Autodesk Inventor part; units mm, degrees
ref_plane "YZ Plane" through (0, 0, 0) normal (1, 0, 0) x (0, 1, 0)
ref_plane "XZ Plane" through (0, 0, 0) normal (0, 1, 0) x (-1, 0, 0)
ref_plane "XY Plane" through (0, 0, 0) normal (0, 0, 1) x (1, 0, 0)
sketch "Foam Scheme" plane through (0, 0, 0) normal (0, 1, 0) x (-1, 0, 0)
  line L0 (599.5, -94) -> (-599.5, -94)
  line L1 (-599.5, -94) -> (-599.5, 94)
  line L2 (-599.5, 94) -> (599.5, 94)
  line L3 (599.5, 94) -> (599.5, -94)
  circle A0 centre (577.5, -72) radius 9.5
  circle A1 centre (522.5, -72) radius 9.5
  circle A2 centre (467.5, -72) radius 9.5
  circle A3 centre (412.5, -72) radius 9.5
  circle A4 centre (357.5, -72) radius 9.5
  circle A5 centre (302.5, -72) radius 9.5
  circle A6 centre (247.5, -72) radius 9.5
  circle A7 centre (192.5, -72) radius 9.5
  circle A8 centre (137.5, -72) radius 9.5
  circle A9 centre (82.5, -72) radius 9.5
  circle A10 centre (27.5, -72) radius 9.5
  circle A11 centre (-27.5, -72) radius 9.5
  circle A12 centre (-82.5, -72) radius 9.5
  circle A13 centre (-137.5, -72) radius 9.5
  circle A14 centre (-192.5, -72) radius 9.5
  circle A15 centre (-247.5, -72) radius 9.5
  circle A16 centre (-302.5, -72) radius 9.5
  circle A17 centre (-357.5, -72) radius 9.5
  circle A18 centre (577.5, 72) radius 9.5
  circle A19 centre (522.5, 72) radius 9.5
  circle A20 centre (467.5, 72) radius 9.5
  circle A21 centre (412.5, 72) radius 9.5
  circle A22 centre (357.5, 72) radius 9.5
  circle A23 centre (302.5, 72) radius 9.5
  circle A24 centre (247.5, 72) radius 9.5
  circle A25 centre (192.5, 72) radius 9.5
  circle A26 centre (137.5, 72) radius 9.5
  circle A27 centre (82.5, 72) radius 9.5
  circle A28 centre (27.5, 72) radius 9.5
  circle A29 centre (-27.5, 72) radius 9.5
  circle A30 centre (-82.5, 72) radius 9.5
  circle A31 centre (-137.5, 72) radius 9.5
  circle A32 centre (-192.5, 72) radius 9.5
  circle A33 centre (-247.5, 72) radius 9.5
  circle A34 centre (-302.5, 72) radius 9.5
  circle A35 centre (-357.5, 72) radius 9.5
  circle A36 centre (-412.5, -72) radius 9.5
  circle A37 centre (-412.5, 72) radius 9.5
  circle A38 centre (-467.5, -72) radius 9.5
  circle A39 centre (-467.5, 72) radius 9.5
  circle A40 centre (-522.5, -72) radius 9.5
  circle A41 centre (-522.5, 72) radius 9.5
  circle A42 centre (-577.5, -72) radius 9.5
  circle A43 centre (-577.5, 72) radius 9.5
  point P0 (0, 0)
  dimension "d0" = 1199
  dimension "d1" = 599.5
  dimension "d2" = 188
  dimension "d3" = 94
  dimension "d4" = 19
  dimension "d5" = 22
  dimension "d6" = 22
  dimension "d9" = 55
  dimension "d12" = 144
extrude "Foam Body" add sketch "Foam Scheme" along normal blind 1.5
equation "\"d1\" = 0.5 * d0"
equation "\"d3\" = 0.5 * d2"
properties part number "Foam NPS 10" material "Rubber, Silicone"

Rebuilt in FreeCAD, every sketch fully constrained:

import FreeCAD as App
import Part
import Sketcher

doc = App.newDocument("Part")
body = doc.addObject("PartDesign::Body", "Body")

sketch1 = body.newObject("Sketcher::SketchObject", "Sketch")
sketch1.AttachmentSupport = (doc.getObject("XZ_Plane"), [""])
sketch1.MapMode = "FlatFace"
sketch1.addGeometry(Part.LineSegment(App.Vector(600, -94, 0), App.Vector(-600, -94, 0)), False)
sketch1.addGeometry(Part.LineSegment(App.Vector(-600, -94, 0), App.Vector(-600, 94, 0)), False)
sketch1.addGeometry(Part.LineSegment(App.Vector(-600, 94, 0), App.Vector(600, 94, 0)), False)
sketch1.addGeometry(Part.LineSegment(App.Vector(600, 94, 0), App.Vector(600, -94, 0)), False)
sketch1.addGeometry(Part.Circle(App.Vector(578, -72, 0), App.Vector(0, 0, 1), 10), False)
sketch1.addGeometry(Part.Circle(App.Vector(522, -72, 0), App.Vector(0, 0, 1), 10), False)
sketch1.addGeometry(Part.Circle(App.Vector(468, -72, 0), App.Vector(0, 0, 1), 10), False)
sketch1.addGeometry(Part.Circle(App.Vector(412, -72, 0), App.Vector(0, 0, 1), 10), False)
sketch1.addGeometry(Part.Circle(App.Vector(358, -72, 0), App.Vector(0, 0, 1), 10), False)
sketch1.addGeometry(Part.Circle(App.Vector(302, -72, 0), App.Vector(0, 0, 1), 10), False)
sketch1.addGeometry(Part.Circle(App.Vector(248, -72, 0), App.Vector(0, 0, 1), 10), False)
sketch1.addGeometry(Part.Circle(App.Vector(192, -72, 0), App.Vector(0, 0, 1), 10), False)
sketch1.addGeometry(Part.Circle(App.Vector(138, -72, 0), App.Vector(0, 0, 1), 10), False)
sketch1.addGeometry(Part.Circle(App.Vector(82, -72, 0), App.Vector(0, 0, 1), 10), False)
sketch1.addGeometry(Part.Circle(App.Vector(28, -72, 0), App.Vector(0, 0, 1), 10), False)
sketch1.addGeometry(Part.Circle(App.Vector(-28, -72, 0), App.Vector(0, 0, 1), 10), False)
sketch1.addGeometry(Part.Circle(App.Vector(-82, -72, 0), App.Vector(0, 0, 1), 10), False)
sketch1.addGeometry(Part.Circle(App.Vector(-138, -72, 0), App.Vector(0, 0, 1), 10), False)
sketch1.addGeometry(Part.Circle(App.Vector(-192, -72, 0), App.Vector(0, 0, 1), 10), False)
sketch1.addGeometry(Part.Circle(App.Vector(-248, -72, 0), App.Vector(0, 0, 1), 10), False)
sketch1.addGeometry(Part.Circle(App.Vector(-302, -72, 0), App.Vector(0, 0, 1), 10), False)
sketch1.addGeometry(Part.Circle(App.Vector(-358, -72, 0), App.Vector(0, 0, 1), 10), False)
sketch1.addGeometry(Part.Circle(App.Vector(-412, -72, 0), App.Vector(0, 0, 1), 10), False)
sketch1.addGeometry(Part.Circle(App.Vector(-468, -72, 0), App.Vector(0, 0, 1), 10), False)
sketch1.addGeometry(Part.Circle(App.Vector(-522, -72, 0), App.Vector(0, 0, 1), 10), False)
sketch1.addGeometry(Part.Circle(App.Vector(-578, -72, 0), App.Vector(0, 0, 1), 10), False)
sketch1.addGeometry(Part.Circle(App.Vector(578, 72, 0), App.Vector(0, 0, 1), 10), False)
sketch1.addGeometry(Part.Circle(App.Vector(522, 72, 0), App.Vector(0, 0, 1), 10), False)
sketch1.addGeometry(Part.Circle(App.Vector(468, 72, 0), App.Vector(0, 0, 1), 10), False)
sketch1.addGeometry(Part.Circle(App.Vector(412, 72, 0), App.Vector(0, 0, 1), 10), False)
sketch1.addGeometry(Part.Circle(App.Vector(358, 72, 0), App.Vector(0, 0, 1), 10), False)
sketch1.addGeometry(Part.Circle(App.Vector(302, 72, 0), App.Vector(0, 0, 1), 10), False)
sketch1.addGeometry(Part.Circle(App.Vector(248, 72, 0), App.Vector(0, 0, 1), 10), False)
sketch1.addGeometry(Part.Circle(App.Vector(192, 72, 0), App.Vector(0, 0, 1), 10), False)
sketch1.addGeometry(Part.Circle(App.Vector(138, 72, 0), App.Vector(0, 0, 1), 10), False)
sketch1.addGeometry(Part.Circle(App.Vector(82, 72, 0), App.Vector(0, 0, 1), 10), False)
sketch1.addGeometry(Part.Circle(App.Vector(28, 72, 0), App.Vector(0, 0, 1), 10), False)
sketch1.addGeometry(Part.Circle(App.Vector(-28, 72, 0), App.Vector(0, 0, 1), 10), False)
sketch1.addGeometry(Part.Circle(App.Vector(-82, 72, 0), App.Vector(0, 0, 1), 10), False)
sketch1.addGeometry(Part.Circle(App.Vector(-138, 72, 0), App.Vector(0, 0, 1), 10), False)
sketch1.addGeometry(Part.Circle(App.Vector(-192, 72, 0), App.Vector(0, 0, 1), 10), False)
sketch1.addGeometry(Part.Circle(App.Vector(-248, 72, 0), App.Vector(0, 0, 1), 10), False)
sketch1.addGeometry(Part.Circle(App.Vector(-302, 72, 0), App.Vector(0, 0, 1), 10), False)
sketch1.addGeometry(Part.Circle(App.Vector(-358, 72, 0), App.Vector(0, 0, 1), 10), False)
sketch1.addGeometry(Part.Circle(App.Vector(-412, 72, 0), App.Vector(0, 0, 1), 10), False)
sketch1.addGeometry(Part.Circle(App.Vector(-468, 72, 0), App.Vector(0, 0, 1), 10), False)
sketch1.addGeometry(Part.Circle(App.Vector(-522, 72, 0), App.Vector(0, 0, 1), 10), False)
sketch1.addGeometry(Part.Circle(App.Vector(-578, 72, 0), App.Vector(0, 0, 1), 10), False)
sketch1.addConstraint(Sketcher.Constraint("Coincident", 0, 2, 1, 1))
sketch1.addConstraint(Sketcher.Constraint("Coincident", 1, 2, 2, 1))
sketch1.addConstraint(Sketcher.Constraint("Coincident", 2, 2, 3, 1))
sketch1.addConstraint(Sketcher.Constraint("Coincident", 3, 2, 0, 1))
sketch1.addConstraint(Sketcher.Constraint("Horizontal", 0))
sketch1.addConstraint(Sketcher.Constraint("Vertical", 1))
sketch1.addConstraint(Sketcher.Constraint("Horizontal", 2))
sketch1.addConstraint(Sketcher.Constraint("Vertical", 3))
sketch1.addConstraint(Sketcher.Constraint("Equal", 4, 5))
sketch1.addConstraint(Sketcher.Constraint("Equal", 5, 6))
sketch1.addConstraint(Sketcher.Constraint("Equal", 6, 7))
sketch1.addConstraint(Sketcher.Constraint("Equal", 7, 8))
sketch1.addConstraint(Sketcher.Constraint("Equal", 8, 9))
sketch1.addConstraint(Sketcher.Constraint("Equal", 9, 10))
sketch1.addConstraint(Sketcher.Constraint("Equal", 10, 11))
sketch1.addConstraint(Sketcher.Constraint("Equal", 11, 12))
sketch1.addConstraint(Sketcher.Constraint("Equal", 12, 13))
sketch1.addConstraint(Sketcher.Constraint("Equal", 13, 14))
sketch1.addConstraint(Sketcher.Constraint("Equal", 14, 15))
sketch1.addConstraint(Sketcher.Constraint("Equal", 15, 16))
sketch1.addConstraint(Sketcher.Constraint("Equal", 16, 17))
sketch1.addConstraint(Sketcher.Constraint("Equal", 17, 18))
sketch1.addConstraint(Sketcher.Constraint("Equal", 18, 19))
sketch1.addConstraint(Sketcher.Constraint("Equal", 19, 20))
sketch1.addConstraint(Sketcher.Constraint("Equal", 20, 21))
sketch1.addConstraint(Sketcher.Constraint("Equal", 21, 22))
sketch1.addConstraint(Sketcher.Constraint("Equal", 22, 23))
sketch1.addConstraint(Sketcher.Constraint("Equal", 23, 24))
sketch1.addConstraint(Sketcher.Constraint("Equal", 24, 25))
sketch1.addConstraint(Sketcher.Constraint("Equal", 25, 26))
sketch1.addConstraint(Sketcher.Constraint("Equal", 26, 27))
sketch1.addConstraint(Sketcher.Constraint("Equal", 27, 28))
sketch1.addConstraint(Sketcher.Constraint("Equal", 28, 29))
sketch1.addConstraint(Sketcher.Constraint("Equal", 29, 30))
sketch1.addConstraint(Sketcher.Constraint("Equal", 30, 31))
sketch1.addConstraint(Sketcher.Constraint("Equal", 31, 32))
sketch1.addConstraint(Sketcher.Constraint("Equal", 32, 33))
sketch1.addConstraint(Sketcher.Constraint("Equal", 33, 34))
sketch1.addConstraint(Sketcher.Constraint("Equal", 34, 35))
sketch1.addConstraint(Sketcher.Constraint("Equal", 35, 36))
sketch1.addConstraint(Sketcher.Constraint("Equal", 36, 37))
sketch1.addConstraint(Sketcher.Constraint("Equal", 37, 38))
sketch1.addConstraint(Sketcher.Constraint("Equal", 38, 39))
sketch1.addConstraint(Sketcher.Constraint("Equal", 39, 40))
sketch1.addConstraint(Sketcher.Constraint("Equal", 40, 41))
sketch1.addConstraint(Sketcher.Constraint("Equal", 41, 42))
sketch1.addConstraint(Sketcher.Constraint("Equal", 42, 43))
sketch1.addConstraint(Sketcher.Constraint("Equal", 43, 44))
sketch1.addConstraint(Sketcher.Constraint("Equal", 44, 45))
sketch1.addConstraint(Sketcher.Constraint("Equal", 45, 46))
sketch1.addConstraint(Sketcher.Constraint("Equal", 46, 47))
sketch1.addConstraint(Sketcher.Constraint("Symmetric", 25, 3, 26, 3, -1, 1))
sketch1.addConstraint(Sketcher.Constraint("Symmetric", 24, 3, 27, 3, -1, 1))
sketch1.addConstraint(Sketcher.Constraint("Symmetric", 23, 3, 28, 3, -1, 1))
sketch1.addConstraint(Sketcher.Constraint("Symmetric", 22, 3, 29, 3, -1, 1))
sketch1.addConstraint(Sketcher.Constraint("Symmetric", 21, 3, 30, 3, -1, 1))
sketch1.addConstraint(Sketcher.Constraint("Symmetric", 20, 3, 31, 3, -1, 1))
sketch1.addConstraint(Sketcher.Constraint("Symmetric", 19, 3, 32, 3, -1, 1))
sketch1.addConstraint(Sketcher.Constraint("Symmetric", 18, 3, 33, 3, -1, 1))
sketch1.addConstraint(Sketcher.Constraint("Symmetric", 17, 3, 34, 3, -1, 1))
sketch1.addConstraint(Sketcher.Constraint("Symmetric", 16, 3, 35, 3, -1, 1))
sketch1.addConstraint(Sketcher.Constraint("Symmetric", 15, 3, 36, 3, -1, 1))
sketch1.addConstraint(Sketcher.Constraint("Symmetric", 14, 3, 37, 3, -1, 1))
sketch1.addConstraint(Sketcher.Constraint("Symmetric", 13, 3, 38, 3, -1, 1))
sketch1.addConstraint(Sketcher.Constraint("Symmetric", 12, 3, 39, 3, -1, 1))
sketch1.addConstraint(Sketcher.Constraint("Symmetric", 11, 3, 40, 3, -1, 1))
sketch1.addConstraint(Sketcher.Constraint("Symmetric", 10, 3, 41, 3, -1, 1))
sketch1.addConstraint(Sketcher.Constraint("Symmetric", 9, 3, 42, 3, -1, 1))
sketch1.addConstraint(Sketcher.Constraint("Symmetric", 8, 3, 43, 3, -1, 1))
sketch1.addConstraint(Sketcher.Constraint("Symmetric", 7, 3, 44, 3, -1, 1))
sketch1.addConstraint(Sketcher.Constraint("Symmetric", 6, 3, 45, 3, -1, 1))
sketch1.addConstraint(Sketcher.Constraint("Symmetric", 5, 3, 46, 3, -1, 1))
sketch1.addConstraint(Sketcher.Constraint("Symmetric", 4, 3, 47, 3, -1, 1))
sketch1.addConstraint(Sketcher.Constraint("Symmetric", 0, 2, 2, 2, -1, 1))
sketch1.addConstraint(Sketcher.Constraint("Symmetric", 14, 3, 15, 3, -2))
sketch1.addConstraint(Sketcher.Constraint("Symmetric", 13, 3, 16, 3, -2))
sketch1.addConstraint(Sketcher.Constraint("Symmetric", 12, 3, 17, 3, -2))
sketch1.addConstraint(Sketcher.Constraint("Symmetric", 11, 3, 18, 3, -2))
sketch1.addConstraint(Sketcher.Constraint("Symmetric", 10, 3, 19, 3, -2))
sketch1.addConstraint(Sketcher.Constraint("Symmetric", 9, 3, 20, 3, -2))
sketch1.addConstraint(Sketcher.Constraint("Symmetric", 8, 3, 21, 3, -2))
sketch1.addConstraint(Sketcher.Constraint("Symmetric", 7, 3, 22, 3, -2))
sketch1.addConstraint(Sketcher.Constraint("Symmetric", 6, 3, 23, 3, -2))
sketch1.addConstraint(Sketcher.Constraint("Symmetric", 5, 3, 24, 3, -2))
sketch1.addConstraint(Sketcher.Constraint("Symmetric", 4, 3, 25, 3, -2))
sketch1.addConstraint(Sketcher.Constraint("Horizontal", 4, 3, 5, 3))
sketch1.addConstraint(Sketcher.Constraint("Horizontal", 5, 3, 6, 3))
sketch1.addConstraint(Sketcher.Constraint("Horizontal", 6, 3, 7, 3))
sketch1.addConstraint(Sketcher.Constraint("Horizontal", 7, 3, 8, 3))
sketch1.addConstraint(Sketcher.Constraint("Horizontal", 8, 3, 9, 3))
sketch1.addConstraint(Sketcher.Constraint("Horizontal", 9, 3, 10, 3))
sketch1.addConstraint(Sketcher.Constraint("Horizontal", 10, 3, 11, 3))
sketch1.addConstraint(Sketcher.Constraint("Horizontal", 11, 3, 12, 3))
sketch1.addConstraint(Sketcher.Constraint("Horizontal", 12, 3, 13, 3))
sketch1.addConstraint(Sketcher.Constraint("Horizontal", 13, 3, 14, 3))
sketch1.addConstraint(Sketcher.Constraint("Diameter", 4, 19.0))
sketch1.addConstraint(Sketcher.Constraint("DistanceX", 0, 2, 0, 1, 1199.0))
sketch1.addConstraint(Sketcher.Constraint("DistanceY", 1, 1, 1, 2, 188.0))
sketch1.addConstraint(Sketcher.Constraint("DistanceX", 5, 3, 4, 3, 55.0))
sketch1.addConstraint(Sketcher.Constraint("DistanceX", 6, 3, 5, 3, 55.0))
sketch1.addConstraint(Sketcher.Constraint("DistanceX", 7, 3, 6, 3, 55.0))
sketch1.addConstraint(Sketcher.Constraint("DistanceX", 8, 3, 7, 3, 55.0))
sketch1.addConstraint(Sketcher.Constraint("DistanceX", 9, 3, 8, 3, 55.0))
sketch1.addConstraint(Sketcher.Constraint("DistanceX", 10, 3, 9, 3, 55.0))
sketch1.addConstraint(Sketcher.Constraint("DistanceX", 11, 3, 10, 3, 55.0))
sketch1.addConstraint(Sketcher.Constraint("DistanceX", 12, 3, 11, 3, 55.0))
sketch1.addConstraint(Sketcher.Constraint("DistanceX", 13, 3, 12, 3, 55.0))
sketch1.addConstraint(Sketcher.Constraint("DistanceX", 14, 3, 13, 3, 55.0))
sketch1.addConstraint(Sketcher.Constraint("DistanceX", 15, 3, 14, 3, 55.0))
sketch1.addConstraint(Sketcher.Constraint("DistanceY", 4, 3, 26, 3, 144.0))
pad1 = body.newObject("PartDesign::Pad", "Pad")
pad1.Profile = sketch1
pad1.Length = 1.5
pad1.Reversed = True

doc.recompute()
